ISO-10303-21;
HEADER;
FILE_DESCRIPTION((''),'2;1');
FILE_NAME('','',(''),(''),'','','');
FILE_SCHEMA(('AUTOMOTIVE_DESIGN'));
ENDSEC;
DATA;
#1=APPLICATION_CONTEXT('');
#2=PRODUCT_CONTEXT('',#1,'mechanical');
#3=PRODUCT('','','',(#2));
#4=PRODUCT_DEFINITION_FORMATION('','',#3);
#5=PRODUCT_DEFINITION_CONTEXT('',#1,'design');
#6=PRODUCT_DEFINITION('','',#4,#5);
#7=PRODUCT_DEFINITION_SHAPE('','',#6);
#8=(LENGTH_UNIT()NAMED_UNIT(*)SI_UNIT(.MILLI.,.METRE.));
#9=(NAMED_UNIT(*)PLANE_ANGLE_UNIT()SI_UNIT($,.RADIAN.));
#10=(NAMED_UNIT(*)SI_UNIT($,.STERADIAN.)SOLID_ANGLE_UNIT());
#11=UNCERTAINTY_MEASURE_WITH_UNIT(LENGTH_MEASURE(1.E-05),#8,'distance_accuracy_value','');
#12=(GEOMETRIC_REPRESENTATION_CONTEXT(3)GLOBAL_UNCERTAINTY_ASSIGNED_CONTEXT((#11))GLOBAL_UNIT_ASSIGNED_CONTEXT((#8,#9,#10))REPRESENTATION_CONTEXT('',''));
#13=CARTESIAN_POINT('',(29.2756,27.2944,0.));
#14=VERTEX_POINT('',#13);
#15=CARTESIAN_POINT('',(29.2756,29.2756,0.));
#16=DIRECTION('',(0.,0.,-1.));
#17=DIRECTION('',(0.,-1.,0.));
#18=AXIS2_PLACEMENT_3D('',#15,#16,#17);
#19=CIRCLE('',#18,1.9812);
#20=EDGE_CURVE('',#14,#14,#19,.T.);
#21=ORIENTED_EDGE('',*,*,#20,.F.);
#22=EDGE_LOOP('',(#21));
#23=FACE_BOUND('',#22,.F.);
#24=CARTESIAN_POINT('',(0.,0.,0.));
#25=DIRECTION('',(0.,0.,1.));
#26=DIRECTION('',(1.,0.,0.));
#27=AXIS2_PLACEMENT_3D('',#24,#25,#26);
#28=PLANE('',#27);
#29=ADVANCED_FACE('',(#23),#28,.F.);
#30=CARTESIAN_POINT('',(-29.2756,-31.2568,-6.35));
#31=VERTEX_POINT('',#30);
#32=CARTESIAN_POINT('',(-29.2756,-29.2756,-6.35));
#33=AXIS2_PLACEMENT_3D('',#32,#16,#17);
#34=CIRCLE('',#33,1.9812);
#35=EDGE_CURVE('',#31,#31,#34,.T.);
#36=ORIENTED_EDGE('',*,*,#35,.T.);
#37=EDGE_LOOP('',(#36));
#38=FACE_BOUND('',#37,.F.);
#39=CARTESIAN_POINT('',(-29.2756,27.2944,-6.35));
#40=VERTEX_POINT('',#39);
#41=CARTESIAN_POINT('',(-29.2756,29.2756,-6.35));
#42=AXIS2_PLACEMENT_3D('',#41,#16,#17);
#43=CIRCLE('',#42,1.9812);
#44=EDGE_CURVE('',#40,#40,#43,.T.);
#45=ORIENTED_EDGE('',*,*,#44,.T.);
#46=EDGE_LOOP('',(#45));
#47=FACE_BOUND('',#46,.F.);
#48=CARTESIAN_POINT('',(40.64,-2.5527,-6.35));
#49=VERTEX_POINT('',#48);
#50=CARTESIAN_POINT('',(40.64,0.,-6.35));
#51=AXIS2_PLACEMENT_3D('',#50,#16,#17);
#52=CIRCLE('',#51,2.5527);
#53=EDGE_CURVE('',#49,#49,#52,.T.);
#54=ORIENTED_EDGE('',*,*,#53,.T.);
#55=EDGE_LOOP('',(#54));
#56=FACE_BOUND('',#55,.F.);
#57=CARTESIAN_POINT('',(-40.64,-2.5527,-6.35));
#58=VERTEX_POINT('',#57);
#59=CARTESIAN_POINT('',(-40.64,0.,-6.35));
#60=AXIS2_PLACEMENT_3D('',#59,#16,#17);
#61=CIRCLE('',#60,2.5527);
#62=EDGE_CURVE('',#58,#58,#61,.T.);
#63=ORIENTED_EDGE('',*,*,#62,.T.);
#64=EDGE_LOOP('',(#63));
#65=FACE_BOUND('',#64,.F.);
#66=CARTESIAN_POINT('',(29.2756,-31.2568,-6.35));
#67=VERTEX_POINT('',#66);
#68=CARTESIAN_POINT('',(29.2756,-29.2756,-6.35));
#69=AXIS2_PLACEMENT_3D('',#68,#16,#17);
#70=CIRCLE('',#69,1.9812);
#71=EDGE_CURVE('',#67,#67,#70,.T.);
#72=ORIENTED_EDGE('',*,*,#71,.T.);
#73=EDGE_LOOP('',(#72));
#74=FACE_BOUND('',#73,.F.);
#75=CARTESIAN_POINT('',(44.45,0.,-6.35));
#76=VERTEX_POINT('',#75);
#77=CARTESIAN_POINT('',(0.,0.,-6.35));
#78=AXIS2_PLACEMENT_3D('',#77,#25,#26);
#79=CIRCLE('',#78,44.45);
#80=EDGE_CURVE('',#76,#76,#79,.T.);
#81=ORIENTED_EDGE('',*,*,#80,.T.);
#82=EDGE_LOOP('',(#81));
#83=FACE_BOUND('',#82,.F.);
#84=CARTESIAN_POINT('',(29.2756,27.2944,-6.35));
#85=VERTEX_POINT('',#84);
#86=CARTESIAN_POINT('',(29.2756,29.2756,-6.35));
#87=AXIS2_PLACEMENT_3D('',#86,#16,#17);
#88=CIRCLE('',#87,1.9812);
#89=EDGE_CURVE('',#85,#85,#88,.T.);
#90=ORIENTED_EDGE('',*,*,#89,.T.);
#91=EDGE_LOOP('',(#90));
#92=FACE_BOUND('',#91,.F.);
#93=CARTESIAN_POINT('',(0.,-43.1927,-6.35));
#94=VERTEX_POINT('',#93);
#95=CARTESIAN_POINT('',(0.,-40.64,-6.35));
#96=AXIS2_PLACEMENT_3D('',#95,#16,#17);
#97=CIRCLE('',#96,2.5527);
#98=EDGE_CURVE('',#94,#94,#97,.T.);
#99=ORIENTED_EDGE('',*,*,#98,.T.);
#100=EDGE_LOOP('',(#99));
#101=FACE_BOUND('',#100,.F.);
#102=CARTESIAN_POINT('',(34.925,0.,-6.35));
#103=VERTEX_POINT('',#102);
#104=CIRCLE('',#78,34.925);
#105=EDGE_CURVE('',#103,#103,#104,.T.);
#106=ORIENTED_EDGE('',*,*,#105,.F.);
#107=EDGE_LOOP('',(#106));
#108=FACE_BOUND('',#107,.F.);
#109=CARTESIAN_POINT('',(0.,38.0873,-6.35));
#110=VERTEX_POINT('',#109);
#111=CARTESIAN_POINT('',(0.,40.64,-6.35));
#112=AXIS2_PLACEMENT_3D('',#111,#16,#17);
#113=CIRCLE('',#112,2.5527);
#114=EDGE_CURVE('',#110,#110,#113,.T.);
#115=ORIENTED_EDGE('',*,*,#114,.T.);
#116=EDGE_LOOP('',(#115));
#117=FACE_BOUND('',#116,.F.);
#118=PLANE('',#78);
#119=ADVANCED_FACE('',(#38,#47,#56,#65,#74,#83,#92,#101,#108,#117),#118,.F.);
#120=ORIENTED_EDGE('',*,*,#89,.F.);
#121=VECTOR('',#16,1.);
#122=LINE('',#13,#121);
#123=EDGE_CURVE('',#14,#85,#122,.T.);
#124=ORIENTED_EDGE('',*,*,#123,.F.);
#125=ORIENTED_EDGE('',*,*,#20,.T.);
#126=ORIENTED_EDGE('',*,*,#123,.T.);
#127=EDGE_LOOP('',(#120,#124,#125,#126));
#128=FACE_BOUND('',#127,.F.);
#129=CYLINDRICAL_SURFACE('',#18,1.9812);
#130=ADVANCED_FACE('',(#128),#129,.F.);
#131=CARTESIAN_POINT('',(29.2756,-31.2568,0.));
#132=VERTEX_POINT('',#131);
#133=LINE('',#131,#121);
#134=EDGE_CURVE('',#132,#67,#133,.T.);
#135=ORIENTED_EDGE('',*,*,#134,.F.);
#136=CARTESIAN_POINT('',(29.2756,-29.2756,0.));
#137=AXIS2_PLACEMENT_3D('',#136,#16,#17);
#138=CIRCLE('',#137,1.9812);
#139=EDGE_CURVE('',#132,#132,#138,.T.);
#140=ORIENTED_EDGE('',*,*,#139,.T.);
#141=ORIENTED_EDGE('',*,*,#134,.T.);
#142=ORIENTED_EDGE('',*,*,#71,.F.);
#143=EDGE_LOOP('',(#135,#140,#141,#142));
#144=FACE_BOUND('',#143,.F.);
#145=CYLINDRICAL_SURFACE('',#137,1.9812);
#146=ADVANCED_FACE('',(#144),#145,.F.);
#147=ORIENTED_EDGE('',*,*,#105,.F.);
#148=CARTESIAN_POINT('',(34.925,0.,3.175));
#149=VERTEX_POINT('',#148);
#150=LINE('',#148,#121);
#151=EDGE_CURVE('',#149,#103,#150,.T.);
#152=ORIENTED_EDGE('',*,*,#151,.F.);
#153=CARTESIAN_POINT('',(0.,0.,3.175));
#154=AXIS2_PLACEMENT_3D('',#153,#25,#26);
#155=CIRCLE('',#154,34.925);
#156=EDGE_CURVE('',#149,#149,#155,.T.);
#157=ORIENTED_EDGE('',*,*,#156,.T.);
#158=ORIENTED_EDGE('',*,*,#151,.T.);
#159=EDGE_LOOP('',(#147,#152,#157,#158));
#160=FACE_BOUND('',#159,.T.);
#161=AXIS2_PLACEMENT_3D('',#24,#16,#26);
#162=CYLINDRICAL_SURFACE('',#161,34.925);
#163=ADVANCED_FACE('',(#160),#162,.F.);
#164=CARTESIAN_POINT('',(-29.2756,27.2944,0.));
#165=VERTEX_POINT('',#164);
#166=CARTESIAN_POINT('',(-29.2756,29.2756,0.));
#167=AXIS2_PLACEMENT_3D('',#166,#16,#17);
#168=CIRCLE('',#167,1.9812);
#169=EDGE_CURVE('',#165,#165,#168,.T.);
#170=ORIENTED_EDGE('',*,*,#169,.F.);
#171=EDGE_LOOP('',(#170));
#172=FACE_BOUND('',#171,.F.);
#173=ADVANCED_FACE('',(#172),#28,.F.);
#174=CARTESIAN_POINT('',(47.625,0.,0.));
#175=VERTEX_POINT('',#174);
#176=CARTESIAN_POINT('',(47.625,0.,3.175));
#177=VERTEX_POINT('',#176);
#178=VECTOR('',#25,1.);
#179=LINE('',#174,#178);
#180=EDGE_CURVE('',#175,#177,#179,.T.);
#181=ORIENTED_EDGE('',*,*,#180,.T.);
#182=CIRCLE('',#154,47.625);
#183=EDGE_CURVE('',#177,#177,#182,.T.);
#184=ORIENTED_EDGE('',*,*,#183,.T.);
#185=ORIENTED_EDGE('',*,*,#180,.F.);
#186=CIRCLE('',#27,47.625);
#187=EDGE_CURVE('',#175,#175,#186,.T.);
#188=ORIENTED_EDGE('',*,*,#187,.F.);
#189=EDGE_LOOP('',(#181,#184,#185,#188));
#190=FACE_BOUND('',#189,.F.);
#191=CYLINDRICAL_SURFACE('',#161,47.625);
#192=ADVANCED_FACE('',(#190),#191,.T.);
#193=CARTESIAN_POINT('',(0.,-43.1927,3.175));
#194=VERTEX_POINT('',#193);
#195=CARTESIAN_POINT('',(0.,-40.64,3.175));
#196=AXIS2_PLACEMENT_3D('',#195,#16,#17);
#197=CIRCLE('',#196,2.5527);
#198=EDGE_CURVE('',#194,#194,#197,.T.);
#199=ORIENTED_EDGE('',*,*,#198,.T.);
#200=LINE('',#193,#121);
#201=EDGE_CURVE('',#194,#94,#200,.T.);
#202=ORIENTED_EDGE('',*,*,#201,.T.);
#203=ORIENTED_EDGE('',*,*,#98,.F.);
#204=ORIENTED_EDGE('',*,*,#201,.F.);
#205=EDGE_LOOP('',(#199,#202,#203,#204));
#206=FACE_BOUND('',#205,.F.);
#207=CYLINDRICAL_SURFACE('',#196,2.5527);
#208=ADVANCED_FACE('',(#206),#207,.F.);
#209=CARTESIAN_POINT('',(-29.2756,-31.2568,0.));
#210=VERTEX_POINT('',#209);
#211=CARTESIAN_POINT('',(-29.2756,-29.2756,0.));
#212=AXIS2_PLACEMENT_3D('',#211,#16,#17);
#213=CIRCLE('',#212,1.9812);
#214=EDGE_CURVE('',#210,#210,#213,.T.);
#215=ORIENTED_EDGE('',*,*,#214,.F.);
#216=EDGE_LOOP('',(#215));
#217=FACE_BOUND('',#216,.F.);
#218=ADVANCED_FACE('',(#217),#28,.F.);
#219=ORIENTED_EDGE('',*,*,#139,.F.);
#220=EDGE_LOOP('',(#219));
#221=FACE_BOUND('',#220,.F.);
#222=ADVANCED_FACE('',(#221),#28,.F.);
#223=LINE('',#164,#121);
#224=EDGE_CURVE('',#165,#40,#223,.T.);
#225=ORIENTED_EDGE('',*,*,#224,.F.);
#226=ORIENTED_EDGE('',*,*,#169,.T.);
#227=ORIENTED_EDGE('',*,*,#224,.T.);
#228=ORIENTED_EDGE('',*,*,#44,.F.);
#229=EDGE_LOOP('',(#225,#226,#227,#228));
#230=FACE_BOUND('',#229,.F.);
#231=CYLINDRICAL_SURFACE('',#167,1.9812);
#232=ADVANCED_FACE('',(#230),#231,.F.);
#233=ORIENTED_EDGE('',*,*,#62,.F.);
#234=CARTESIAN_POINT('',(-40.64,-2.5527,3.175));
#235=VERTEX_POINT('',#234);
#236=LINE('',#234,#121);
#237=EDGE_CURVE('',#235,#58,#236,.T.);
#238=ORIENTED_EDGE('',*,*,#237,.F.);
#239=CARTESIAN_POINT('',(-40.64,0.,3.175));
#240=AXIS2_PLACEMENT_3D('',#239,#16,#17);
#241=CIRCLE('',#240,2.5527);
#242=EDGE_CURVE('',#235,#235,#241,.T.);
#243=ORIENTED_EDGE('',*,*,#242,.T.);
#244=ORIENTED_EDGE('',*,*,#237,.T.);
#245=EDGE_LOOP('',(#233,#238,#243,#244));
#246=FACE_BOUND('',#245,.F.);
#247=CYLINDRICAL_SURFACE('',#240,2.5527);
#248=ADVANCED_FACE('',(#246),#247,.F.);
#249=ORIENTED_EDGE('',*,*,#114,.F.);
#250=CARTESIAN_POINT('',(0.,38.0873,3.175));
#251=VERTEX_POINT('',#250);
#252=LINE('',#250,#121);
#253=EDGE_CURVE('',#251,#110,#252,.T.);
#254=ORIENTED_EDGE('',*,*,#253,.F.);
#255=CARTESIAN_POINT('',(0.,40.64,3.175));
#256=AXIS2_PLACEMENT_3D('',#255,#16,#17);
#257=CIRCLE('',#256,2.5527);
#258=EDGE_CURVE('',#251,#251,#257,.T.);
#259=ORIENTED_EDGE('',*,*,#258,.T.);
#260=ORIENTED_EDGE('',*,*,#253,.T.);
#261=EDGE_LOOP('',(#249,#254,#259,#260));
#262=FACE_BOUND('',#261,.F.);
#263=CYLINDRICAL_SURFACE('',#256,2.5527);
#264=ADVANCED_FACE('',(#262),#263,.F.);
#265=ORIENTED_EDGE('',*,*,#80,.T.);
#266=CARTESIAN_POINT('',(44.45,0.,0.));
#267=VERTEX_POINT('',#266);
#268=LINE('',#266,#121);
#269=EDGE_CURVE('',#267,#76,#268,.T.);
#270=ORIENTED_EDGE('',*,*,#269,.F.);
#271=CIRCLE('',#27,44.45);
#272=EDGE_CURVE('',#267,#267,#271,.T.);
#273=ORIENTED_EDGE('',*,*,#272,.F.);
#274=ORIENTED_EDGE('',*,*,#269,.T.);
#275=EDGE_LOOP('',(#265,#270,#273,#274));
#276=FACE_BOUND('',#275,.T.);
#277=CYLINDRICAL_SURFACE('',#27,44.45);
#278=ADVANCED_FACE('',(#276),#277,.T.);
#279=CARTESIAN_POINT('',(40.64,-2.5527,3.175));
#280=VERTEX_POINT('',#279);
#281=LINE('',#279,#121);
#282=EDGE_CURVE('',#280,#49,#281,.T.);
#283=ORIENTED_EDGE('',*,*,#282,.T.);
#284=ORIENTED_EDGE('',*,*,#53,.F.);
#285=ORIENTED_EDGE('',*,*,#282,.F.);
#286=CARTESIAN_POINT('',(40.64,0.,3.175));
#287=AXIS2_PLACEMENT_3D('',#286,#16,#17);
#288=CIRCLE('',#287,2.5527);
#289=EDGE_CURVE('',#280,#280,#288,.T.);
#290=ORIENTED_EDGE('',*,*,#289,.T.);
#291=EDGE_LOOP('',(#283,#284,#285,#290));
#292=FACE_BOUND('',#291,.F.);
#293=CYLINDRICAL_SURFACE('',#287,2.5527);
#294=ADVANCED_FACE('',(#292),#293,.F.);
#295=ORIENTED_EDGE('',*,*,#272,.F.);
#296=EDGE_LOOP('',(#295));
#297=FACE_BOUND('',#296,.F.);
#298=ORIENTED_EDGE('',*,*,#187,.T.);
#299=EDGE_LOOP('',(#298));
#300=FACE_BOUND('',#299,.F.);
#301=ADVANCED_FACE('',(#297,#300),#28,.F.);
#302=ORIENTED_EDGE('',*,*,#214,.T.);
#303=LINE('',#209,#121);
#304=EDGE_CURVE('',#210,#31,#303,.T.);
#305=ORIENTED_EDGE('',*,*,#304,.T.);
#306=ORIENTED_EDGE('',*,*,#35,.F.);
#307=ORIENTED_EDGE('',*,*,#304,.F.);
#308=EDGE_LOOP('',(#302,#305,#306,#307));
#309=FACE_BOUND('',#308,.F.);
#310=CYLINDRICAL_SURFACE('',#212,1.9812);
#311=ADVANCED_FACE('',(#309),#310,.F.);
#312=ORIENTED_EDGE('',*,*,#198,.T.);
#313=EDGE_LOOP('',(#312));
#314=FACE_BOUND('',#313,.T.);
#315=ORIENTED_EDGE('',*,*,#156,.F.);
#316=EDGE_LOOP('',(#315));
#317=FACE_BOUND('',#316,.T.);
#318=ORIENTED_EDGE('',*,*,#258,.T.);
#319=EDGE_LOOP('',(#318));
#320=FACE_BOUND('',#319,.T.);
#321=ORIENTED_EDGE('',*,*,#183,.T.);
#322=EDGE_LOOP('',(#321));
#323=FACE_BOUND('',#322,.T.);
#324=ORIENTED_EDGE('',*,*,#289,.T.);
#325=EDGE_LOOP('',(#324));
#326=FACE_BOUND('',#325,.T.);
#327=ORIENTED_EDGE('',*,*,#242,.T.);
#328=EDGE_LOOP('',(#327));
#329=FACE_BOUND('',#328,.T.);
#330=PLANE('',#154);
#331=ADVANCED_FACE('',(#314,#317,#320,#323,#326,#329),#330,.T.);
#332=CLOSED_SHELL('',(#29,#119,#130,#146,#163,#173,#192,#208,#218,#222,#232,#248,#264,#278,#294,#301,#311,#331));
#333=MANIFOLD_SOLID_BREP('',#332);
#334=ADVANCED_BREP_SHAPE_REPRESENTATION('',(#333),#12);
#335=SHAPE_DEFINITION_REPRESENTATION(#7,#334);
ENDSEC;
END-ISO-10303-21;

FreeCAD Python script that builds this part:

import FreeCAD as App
import Part
import Sketcher
from FreeCAD import Vector
Q = App.Units.Quantity

doc = App.newDocument("Part")
params = doc.addObject("Spreadsheet::Sheet", "Params")
for row, (alias, value) in enumerate([
    ("sketch1_diameter", "3.5 in"),
    ("sketch1_diameter2", "2.75 in"),
    ("pad1_length", "0.25 in"),
    ("sketch2_diameter", "0.156 in"),
    ("hole_diameter", "0.156 in"),
    ("sketch3_diameter", "3.75 in"),
    ("sketch3_diameter2", "2.75 in"),
    ("pad2_length", "0.125 in"),
    ("sketch4_diameter", "0.201 in"),
    ("hole2_diameter", "0.201 in"),
], start=1):
    params.set(f"A{row}", alias)
    params.set(f"B{row}", "=" + value)
    params.setAlias(f"B{row}", alias)

body = doc.addObject("PartDesign::Body", "Body")

# Sketch on XY plane
sketch1 = body.newObject("Sketcher::SketchObject", "Sketch")
sketch1.AttachmentSupport = (doc.getObject("XY_Plane"), [""])
sketch1.MapMode = "FlatFace"
sketch1.addGeometry(Part.Circle(Vector(0, 0, 0), Vector(0, 0, 1), 44), False)
sketch1.addGeometry(Part.Circle(Vector(0, 0, 0), Vector(0, 0, 1), 35), False)
sketch1.addConstraint(Sketcher.Constraint("Coincident", 0, 3, -1, 1))
sketch1.addConstraint(Sketcher.Constraint("Coincident", 1, 3, -1, 1))
sketch1.addConstraint(Sketcher.Constraint("Diameter", 0, Q("3.5 in")))
sketch1.addConstraint(Sketcher.Constraint("Diameter", 1, Q("2.75 in")))
sketch1.setExpression("Constraints[2]", "Params.sketch1_diameter")
sketch1.setExpression("Constraints[3]", "Params.sketch1_diameter2")
pad1 = body.newObject("PartDesign::Pad", "Pad")
pad1.Profile = sketch1
pad1.setExpression("Length", "Params.pad1_length")
pad1.Reversed = True

# Sketch on XY plane
sketch2 = body.newObject("Sketcher::SketchObject", "Sketch001")
sketch2.AttachmentSupport = (doc.getObject("XY_Plane"), [""])
sketch2.MapMode = "FlatFace"
sketch2.addGeometry(Part.Circle(Vector(29.3, 29.3, 0), Vector(0, 0, 1), 2), False)
sketch2.addGeometry(Part.Circle(Vector(-29.3, 29.3, 0), Vector(0, 0, 1), 2), False)
sketch2.addGeometry(Part.Circle(Vector(-29.3, -29.3, 0), Vector(0, 0, 1), 2), False)
sketch2.addGeometry(Part.Circle(Vector(29.3, -29.3, 0), Vector(0, 0, 1), 2), False)
sketch2.addConstraint(Sketcher.Constraint("Equal", 0, 1))
sketch2.addConstraint(Sketcher.Constraint("Equal", 1, 2))
sketch2.addConstraint(Sketcher.Constraint("Equal", 2, 3))
sketch2.addConstraint(Sketcher.Constraint("Symmetric", 0, 3, 2, 3, -1, 1))
sketch2.addConstraint(Sketcher.Constraint("Symmetric", 1, 3, 3, 3, -1, 1))
sketch2.addConstraint(Sketcher.Constraint("Symmetric", 0, 3, 1, 3, -2))
sketch2.addConstraint(Sketcher.Constraint("Diameter", 0, Q("0.156 in")))
sketch2.addConstraint(Sketcher.Constraint("DistanceX", -1, 1, 0, 3, Q("29.2756 mm")))
sketch2.addConstraint(Sketcher.Constraint("DistanceY", -1, 1, 0, 3, Q("29.2756 mm")))
sketch2.setExpression("Constraints[6]", "Params.sketch2_diameter")
doc.recompute()
hole = body.newObject("PartDesign::Hole", "Hole")
hole.Profile = sketch2
hole.ThreadType = "None"
hole.setExpression("Diameter", "Params.hole_diameter")
hole.DepthType = "ThroughAll"

# Sketch on XY plane
sketch3 = body.newObject("Sketcher::SketchObject", "Sketch002")
sketch3.AttachmentSupport = (doc.getObject("XY_Plane"), [""])
sketch3.MapMode = "FlatFace"
sketch3.addGeometry(Part.Circle(Vector(0, 0, 0), Vector(0, 0, 1), 48), False)
sketch3.addGeometry(Part.Circle(Vector(0, 0, 0), Vector(0, 0, 1), 35), False)
sketch3.addConstraint(Sketcher.Constraint("Coincident", 0, 3, -1, 1))
sketch3.addConstraint(Sketcher.Constraint("Coincident", 1, 3, -1, 1))
sketch3.addConstraint(Sketcher.Constraint("Diameter", 0, Q("3.75 in")))
sketch3.addConstraint(Sketcher.Constraint("Diameter", 1, Q("2.75 in")))
sketch3.setExpression("Constraints[2]", "Params.sketch3_diameter")
sketch3.setExpression("Constraints[3]", "Params.sketch3_diameter2")
pad2 = body.newObject("PartDesign::Pad", "Pad001")
pad2.Profile = sketch3
pad2.setExpression("Length", "Params.pad2_length")

# Sketch on XY plane
sketch4 = body.newObject("Sketcher::SketchObject", "Sketch003")
sketch4.AttachmentSupport = (doc.getObject("XY_Plane"), [""])
sketch4.MapMode = "FlatFace"
sketch4.AttachmentOffset = App.Placement(Vector(0, 0, 0.125 * 25.4), App.Rotation())
sketch4.addGeometry(Part.Circle(Vector(0, 40.6, 0), Vector(0, 0, 1), 2.6), False)
sketch4.addGeometry(Part.Circle(Vector(-40.6, 0, 0), Vector(0, 0, 1), 2.6), False)
sketch4.addGeometry(Part.Circle(Vector(0, -40.6, 0), Vector(0, 0, 1), 2.6), False)
sketch4.addGeometry(Part.Circle(Vector(40.6, 0, 0), Vector(0, 0, 1), 2.6), False)
sketch4.addConstraint(Sketcher.Constraint("Equal", 0, 1))
sketch4.addConstraint(Sketcher.Constraint("Equal", 1, 2))
sketch4.addConstraint(Sketcher.Constraint("Equal", 2, 3))
sketch4.addConstraint(Sketcher.Constraint("Symmetric", 0, 3, 2, 3, -1, 1))
sketch4.addConstraint(Sketcher.Constraint("Symmetric", 1, 3, 3, 3, -1, 1))
sketch4.addConstraint(Sketcher.Constraint("PointOnObject", 0, 3, -2))
sketch4.addConstraint(Sketcher.Constraint("PointOnObject", 1, 3, -1))
sketch4.addConstraint(Sketcher.Constraint("Diameter", 0, Q("0.201 in")))
sketch4.addConstraint(Sketcher.Constraint("DistanceY", -1, 1, 0, 3, Q("1.6 in")))
sketch4.addConstraint(Sketcher.Constraint("DistanceX", 1, 3, -1, 1, Q("1.6 in")))
sketch4.setExpression("Constraints[7]", "Params.sketch4_diameter")
doc.recompute()
hole2 = body.newObject("PartDesign::Hole", "Hole001")
hole2.Profile = sketch4
hole2.ThreadType = "None"
hole2.setExpression("Diameter", "Params.hole2_diameter")
hole2.DepthType = "ThroughAll"

doc.recompute()
